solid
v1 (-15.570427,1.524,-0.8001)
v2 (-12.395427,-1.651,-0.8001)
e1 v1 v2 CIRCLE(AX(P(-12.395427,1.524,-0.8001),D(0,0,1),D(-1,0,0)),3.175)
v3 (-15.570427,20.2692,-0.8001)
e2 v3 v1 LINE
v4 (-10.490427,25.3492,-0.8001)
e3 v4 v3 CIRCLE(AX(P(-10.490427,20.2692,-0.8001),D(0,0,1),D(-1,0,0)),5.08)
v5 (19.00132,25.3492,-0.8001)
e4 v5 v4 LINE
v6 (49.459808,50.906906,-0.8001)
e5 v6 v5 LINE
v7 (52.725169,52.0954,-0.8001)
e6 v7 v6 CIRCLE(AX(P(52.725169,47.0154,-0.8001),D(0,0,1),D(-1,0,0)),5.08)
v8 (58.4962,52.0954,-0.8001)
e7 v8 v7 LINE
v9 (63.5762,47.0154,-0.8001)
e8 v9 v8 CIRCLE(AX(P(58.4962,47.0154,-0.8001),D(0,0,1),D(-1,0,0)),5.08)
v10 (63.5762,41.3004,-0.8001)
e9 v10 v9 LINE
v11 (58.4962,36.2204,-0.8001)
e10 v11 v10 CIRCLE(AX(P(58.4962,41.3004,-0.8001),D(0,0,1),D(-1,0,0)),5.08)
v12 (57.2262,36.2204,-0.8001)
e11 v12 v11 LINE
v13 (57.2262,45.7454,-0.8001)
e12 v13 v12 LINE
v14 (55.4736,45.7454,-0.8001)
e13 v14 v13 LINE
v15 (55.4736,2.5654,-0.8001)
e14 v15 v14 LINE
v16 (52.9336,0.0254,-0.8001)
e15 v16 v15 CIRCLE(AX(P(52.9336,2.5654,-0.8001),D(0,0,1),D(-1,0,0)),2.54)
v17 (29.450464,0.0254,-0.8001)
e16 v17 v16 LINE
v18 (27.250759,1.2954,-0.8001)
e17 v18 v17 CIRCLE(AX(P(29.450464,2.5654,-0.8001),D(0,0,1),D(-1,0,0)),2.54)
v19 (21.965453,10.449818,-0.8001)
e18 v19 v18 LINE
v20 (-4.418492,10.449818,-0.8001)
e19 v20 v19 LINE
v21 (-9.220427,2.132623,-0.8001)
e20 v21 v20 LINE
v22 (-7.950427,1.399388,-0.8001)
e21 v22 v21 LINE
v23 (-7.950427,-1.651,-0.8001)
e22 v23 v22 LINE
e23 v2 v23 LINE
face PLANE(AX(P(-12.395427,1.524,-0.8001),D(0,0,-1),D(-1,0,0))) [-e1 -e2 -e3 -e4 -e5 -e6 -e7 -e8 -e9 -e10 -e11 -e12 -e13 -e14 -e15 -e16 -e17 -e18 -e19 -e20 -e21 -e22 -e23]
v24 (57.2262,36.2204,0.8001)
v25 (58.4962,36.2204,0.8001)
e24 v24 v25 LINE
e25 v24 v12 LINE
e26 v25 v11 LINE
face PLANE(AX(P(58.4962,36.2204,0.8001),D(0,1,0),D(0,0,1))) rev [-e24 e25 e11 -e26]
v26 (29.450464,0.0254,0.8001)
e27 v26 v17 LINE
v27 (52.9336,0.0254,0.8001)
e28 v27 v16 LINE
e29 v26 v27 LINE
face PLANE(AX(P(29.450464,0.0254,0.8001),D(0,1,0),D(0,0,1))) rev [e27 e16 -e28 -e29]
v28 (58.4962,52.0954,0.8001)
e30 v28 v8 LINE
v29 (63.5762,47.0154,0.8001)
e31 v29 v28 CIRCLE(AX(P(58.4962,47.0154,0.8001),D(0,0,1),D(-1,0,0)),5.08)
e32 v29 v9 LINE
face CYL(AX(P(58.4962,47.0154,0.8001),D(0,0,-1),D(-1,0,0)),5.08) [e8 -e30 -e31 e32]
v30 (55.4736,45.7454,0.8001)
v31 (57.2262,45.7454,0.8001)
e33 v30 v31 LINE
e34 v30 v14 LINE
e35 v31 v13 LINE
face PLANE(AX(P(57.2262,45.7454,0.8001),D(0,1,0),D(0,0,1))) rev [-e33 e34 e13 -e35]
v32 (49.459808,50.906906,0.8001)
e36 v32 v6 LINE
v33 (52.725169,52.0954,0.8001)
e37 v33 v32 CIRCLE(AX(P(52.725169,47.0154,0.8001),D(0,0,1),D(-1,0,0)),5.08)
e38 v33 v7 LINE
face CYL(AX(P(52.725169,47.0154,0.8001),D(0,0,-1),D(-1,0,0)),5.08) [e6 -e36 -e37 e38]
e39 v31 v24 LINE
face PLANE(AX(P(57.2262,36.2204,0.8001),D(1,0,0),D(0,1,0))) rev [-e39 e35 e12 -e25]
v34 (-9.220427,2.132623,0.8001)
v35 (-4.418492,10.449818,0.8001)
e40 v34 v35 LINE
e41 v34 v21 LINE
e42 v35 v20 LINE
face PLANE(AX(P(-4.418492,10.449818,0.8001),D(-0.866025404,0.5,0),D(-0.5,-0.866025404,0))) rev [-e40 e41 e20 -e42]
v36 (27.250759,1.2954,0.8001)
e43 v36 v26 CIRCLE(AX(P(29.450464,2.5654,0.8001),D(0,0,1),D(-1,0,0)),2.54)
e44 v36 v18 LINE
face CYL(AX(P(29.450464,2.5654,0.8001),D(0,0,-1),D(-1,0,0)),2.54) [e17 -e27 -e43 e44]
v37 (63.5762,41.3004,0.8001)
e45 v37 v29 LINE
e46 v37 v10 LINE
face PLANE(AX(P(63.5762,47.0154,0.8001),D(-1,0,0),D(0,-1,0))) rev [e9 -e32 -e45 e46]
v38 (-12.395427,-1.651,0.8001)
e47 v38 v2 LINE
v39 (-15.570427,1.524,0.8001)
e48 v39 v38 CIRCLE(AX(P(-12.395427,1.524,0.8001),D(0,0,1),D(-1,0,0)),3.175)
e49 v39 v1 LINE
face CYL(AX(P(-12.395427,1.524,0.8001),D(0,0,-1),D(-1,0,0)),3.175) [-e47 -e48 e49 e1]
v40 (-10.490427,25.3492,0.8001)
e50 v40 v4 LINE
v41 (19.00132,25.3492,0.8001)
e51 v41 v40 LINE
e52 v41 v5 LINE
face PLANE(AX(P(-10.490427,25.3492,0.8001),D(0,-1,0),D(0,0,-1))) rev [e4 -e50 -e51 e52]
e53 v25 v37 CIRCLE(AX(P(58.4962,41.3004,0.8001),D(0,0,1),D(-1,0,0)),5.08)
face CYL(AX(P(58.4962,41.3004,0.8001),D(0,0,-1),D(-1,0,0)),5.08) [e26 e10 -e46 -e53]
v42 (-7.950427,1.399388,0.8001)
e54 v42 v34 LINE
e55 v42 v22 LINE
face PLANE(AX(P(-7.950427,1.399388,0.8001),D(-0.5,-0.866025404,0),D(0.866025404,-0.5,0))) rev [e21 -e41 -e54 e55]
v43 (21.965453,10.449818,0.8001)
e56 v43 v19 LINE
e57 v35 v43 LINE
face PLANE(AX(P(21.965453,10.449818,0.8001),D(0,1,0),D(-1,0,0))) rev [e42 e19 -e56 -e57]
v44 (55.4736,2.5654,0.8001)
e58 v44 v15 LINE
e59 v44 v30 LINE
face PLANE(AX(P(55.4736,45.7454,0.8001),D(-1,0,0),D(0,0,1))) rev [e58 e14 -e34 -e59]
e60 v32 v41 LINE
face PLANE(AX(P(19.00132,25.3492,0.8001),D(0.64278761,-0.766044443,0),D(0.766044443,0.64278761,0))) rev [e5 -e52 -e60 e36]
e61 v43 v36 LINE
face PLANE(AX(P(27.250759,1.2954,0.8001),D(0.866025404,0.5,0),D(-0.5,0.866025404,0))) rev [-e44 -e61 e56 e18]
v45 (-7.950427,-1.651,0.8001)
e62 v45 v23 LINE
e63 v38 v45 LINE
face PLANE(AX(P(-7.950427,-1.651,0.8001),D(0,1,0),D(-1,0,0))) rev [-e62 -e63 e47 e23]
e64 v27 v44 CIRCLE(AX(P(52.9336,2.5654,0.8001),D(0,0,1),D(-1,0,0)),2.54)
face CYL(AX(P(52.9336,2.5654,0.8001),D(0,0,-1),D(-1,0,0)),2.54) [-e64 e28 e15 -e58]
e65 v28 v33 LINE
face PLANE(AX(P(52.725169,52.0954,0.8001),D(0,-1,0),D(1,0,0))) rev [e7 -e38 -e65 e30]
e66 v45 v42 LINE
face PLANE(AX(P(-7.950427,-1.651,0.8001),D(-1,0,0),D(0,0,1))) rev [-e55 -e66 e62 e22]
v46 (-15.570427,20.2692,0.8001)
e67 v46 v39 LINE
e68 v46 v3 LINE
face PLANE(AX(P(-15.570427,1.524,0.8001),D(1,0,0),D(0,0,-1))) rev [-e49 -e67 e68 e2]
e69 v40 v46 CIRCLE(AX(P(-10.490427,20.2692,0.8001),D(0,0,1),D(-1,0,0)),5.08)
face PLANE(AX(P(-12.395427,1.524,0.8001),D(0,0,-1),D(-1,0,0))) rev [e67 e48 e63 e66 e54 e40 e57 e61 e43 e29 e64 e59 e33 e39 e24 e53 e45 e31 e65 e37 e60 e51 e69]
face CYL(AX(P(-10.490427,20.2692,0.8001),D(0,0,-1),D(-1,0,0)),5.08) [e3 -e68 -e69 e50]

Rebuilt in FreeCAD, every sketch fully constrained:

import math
import FreeCAD as App
import Part
import Sketcher

V = App.Vector
Q = App.Units.Quantity

doc = App.newDocument("Part")
body = doc.addObject("PartDesign::Body", "Body")

# Sketch on XY plane
sketch1 = body.newObject("Sketcher::SketchObject", "Sketch")
sketch1.AttachmentSupport = (doc.getObject("XY_Plane"), [""])
sketch1.MapMode = "FlatFace"
sketch1.addGeometry([
    Part.LineSegment(V(21.965453, 10.449818, 0), V(27.250759, 1.2954, 0)),  # 0
    Part.ArcOfCircle(Part.Circle(V(29.450464, 2.5654, 0), V(0, 0, 1), 2.54), math.radians(-150), math.radians(-90)),  # 1
    Part.LineSegment(V(29.450464, 0.0254, 0), V(52.9336, 0.0254, 0)),  # 2
    Part.ArcOfCircle(Part.Circle(V(52.9336, 2.5654, 0), V(0, 0, 1), 2.54), math.radians(-90), math.radians(0)),  # 3
    Part.LineSegment(V(55.4736, 2.5654, 0), V(55.4736, 45.7454, 0)),  # 4
    Part.LineSegment(V(55.4736, 45.7454, 0), V(57.2262, 45.7454, 0)),  # 5
    Part.LineSegment(V(57.2262, 45.7454, 0), V(57.2262, 36.2204, 0)),  # 6
    Part.LineSegment(V(57.2262, 36.2204, 0), V(58.4962, 36.2204, 0)),  # 7
    Part.ArcOfCircle(Part.Circle(V(58.4962, 41.3004, 0), V(0, 0, 1), 5.08), math.radians(-90), math.radians(0)),  # 8
    Part.LineSegment(V(63.5762, 41.3004, 0), V(63.5762, 47.0154, 0)),  # 9
    Part.ArcOfCircle(Part.Circle(V(58.4962, 47.0154, 0), V(0, 0, 1), 5.08), math.radians(0), math.radians(90)),  # 10
    Part.LineSegment(V(58.4962, 52.0954, 0), V(52.725169, 52.0954, 0)),  # 11
    Part.ArcOfCircle(Part.Circle(V(52.725169, 47.0154, 0), V(0, 0, 1), 5.08), math.radians(90), math.radians(130)),  # 12
    Part.LineSegment(V(49.459808, 50.906906, 0), V(19.00132, 25.3492, 0)),  # 13
    Part.LineSegment(V(19.00132, 25.3492, 0), V(-10.490427, 25.3492, 0)),  # 14
    Part.ArcOfCircle(Part.Circle(V(-10.490427, 20.2692, 0), V(0, 0, 1), 5.08), math.radians(90), math.radians(180)),  # 15
    Part.LineSegment(V(-15.570427, 20.2692, 0), V(-15.570427, 1.524, 0)),  # 16
    Part.ArcOfCircle(Part.Circle(V(-12.395427, 1.524, 0), V(0, 0, 1), 3.175), math.radians(-180), math.radians(-90)),  # 17
    Part.LineSegment(V(-12.395427, -1.651, 0), V(-7.950427, -1.651, 0)),  # 18
    Part.LineSegment(V(-7.950427, -1.651, 0), V(-7.950427, 1.399388, 0)),  # 19
    Part.LineSegment(V(-7.950427, 1.399388, 0), V(-9.220427, 2.132623, 0)),  # 20
    Part.LineSegment(V(-9.220427, 2.132623, 0), V(-4.418492, 10.449818, 0)),  # 21
    Part.LineSegment(V(-4.418492, 10.449818, 0), V(21.965453, 10.449818, 0)),  # 22
], False)
sketch1.addConstraint([
    Sketcher.Constraint("Tangent", 0, 2, 1, 1),
    Sketcher.Constraint("Tangent", 1, 2, 2, 1),
    Sketcher.Constraint("Tangent", 2, 2, 3, 1),
    Sketcher.Constraint("Tangent", 3, 2, 4, 1),
    Sketcher.Constraint("Coincident", 4, 2, 5, 1),
    Sketcher.Constraint("Coincident", 5, 2, 6, 1),
    Sketcher.Constraint("Coincident", 6, 2, 7, 1),
    Sketcher.Constraint("Tangent", 7, 2, 8, 1),
    Sketcher.Constraint("Tangent", 8, 2, 9, 1),
    Sketcher.Constraint("Tangent", 9, 2, 10, 1),
    Sketcher.Constraint("Tangent", 10, 2, 11, 1),
    Sketcher.Constraint("Tangent", 11, 2, 12, 1),
    Sketcher.Constraint("Tangent", 12, 2, 13, 1),
    Sketcher.Constraint("Coincident", 13, 2, 14, 1),
    Sketcher.Constraint("Tangent", 14, 2, 15, 1),
    Sketcher.Constraint("Tangent", 15, 2, 16, 1),
    Sketcher.Constraint("Tangent", 16, 2, 17, 1),
    Sketcher.Constraint("Tangent", 17, 2, 18, 1),
    Sketcher.Constraint("Coincident", 18, 2, 19, 1),
    Sketcher.Constraint("Coincident", 19, 2, 20, 1),
    Sketcher.Constraint("Coincident", 20, 2, 21, 1),
    Sketcher.Constraint("Coincident", 21, 2, 22, 1),
    Sketcher.Constraint("Coincident", 22, 2, 0, 1),
    Sketcher.Constraint("Horizontal", 2),
    Sketcher.Constraint("Vertical", 4),
    Sketcher.Constraint("Horizontal", 5),
    Sketcher.Constraint("Vertical", 6),
    Sketcher.Constraint("Horizontal", 7),
    Sketcher.Constraint("Vertical", 9),
    Sketcher.Constraint("Horizontal", 11),
    Sketcher.Constraint("Horizontal", 14),
    Sketcher.Constraint("Vertical", 16),
    Sketcher.Constraint("Horizontal", 18),
    Sketcher.Constraint("Vertical", 19),
    Sketcher.Constraint("Horizontal", 22),
    Sketcher.Constraint("Equal", 1, 3),
    Sketcher.Constraint("Equal", 8, 10),
    Sketcher.Constraint("Equal", 10, 12),
    Sketcher.Constraint("Equal", 12, 15),
    Sketcher.Constraint("Perpendicular", 20, 21),
    Sketcher.Constraint("Radius", 1, Q("0.1 in")),
    Sketcher.Constraint("Radius", 8, Q("0.2 in")),
    Sketcher.Constraint("DistanceY", 4, 1, 4, 2, Q("1.7 in")),
    Sketcher.Constraint("Angle", 0, Q("-60 deg")),
    Sketcher.Constraint("Angle", 13, Q("-140 deg")),
    Sketcher.Constraint("Angle", 20, Q("150 deg")),
    Sketcher.Constraint("Radius", 17, Q("0.125 in")),
    Sketcher.Constraint("DistanceX", 7, 1, 7, 2, Q("0.05 in")),
    Sketcher.Constraint("DistanceX", 16, 2, 18, 2, Q("0.3 in")),
    Sketcher.Constraint("DistanceX", 5, 1, 5, 2, Q("0.069 in")),
    Sketcher.Constraint("DistanceY", 6, 2, 6, 1, Q("0.375 in")),
    Sketcher.Constraint("DistanceY", 9, 1, 9, 2, Q("0.225 in")),
    Sketcher.Constraint("DistanceY", 16, 2, 16, 1, Q("0.738 in")),
    Sketcher.Constraint("DistanceY", -1, 1, 17, 3, Q("0.06 in")),
    Sketcher.Constraint("DistanceX", 20, 2, 19, 2, Q("0.05 in")),
    Sketcher.Constraint("DistanceY", -1, 1, 1, 3, Q("0.101 in")),
    Sketcher.Constraint("DistanceX", -1, 1, 3, 3, Q("2.084 in")),
    Sketcher.Constraint("DistanceX", 11, 2, 11, 1, 5.771031),
    Sketcher.Constraint("Distance", 0, 10.570612),
    Sketcher.Constraint("Distance", 21, 9.60387),
    Sketcher.Constraint("DistanceX", 2, 1, 2, 2, 23.483136),
    Sketcher.Constraint("DistanceX", 14, 2, 14, 1, 29.491747),
])
pad1 = body.newObject("PartDesign::Pad", "Pad")
pad1.Profile = sketch1
pad1.Length = Q("0.063 in")
pad1.Midplane = True

doc.recompute()
